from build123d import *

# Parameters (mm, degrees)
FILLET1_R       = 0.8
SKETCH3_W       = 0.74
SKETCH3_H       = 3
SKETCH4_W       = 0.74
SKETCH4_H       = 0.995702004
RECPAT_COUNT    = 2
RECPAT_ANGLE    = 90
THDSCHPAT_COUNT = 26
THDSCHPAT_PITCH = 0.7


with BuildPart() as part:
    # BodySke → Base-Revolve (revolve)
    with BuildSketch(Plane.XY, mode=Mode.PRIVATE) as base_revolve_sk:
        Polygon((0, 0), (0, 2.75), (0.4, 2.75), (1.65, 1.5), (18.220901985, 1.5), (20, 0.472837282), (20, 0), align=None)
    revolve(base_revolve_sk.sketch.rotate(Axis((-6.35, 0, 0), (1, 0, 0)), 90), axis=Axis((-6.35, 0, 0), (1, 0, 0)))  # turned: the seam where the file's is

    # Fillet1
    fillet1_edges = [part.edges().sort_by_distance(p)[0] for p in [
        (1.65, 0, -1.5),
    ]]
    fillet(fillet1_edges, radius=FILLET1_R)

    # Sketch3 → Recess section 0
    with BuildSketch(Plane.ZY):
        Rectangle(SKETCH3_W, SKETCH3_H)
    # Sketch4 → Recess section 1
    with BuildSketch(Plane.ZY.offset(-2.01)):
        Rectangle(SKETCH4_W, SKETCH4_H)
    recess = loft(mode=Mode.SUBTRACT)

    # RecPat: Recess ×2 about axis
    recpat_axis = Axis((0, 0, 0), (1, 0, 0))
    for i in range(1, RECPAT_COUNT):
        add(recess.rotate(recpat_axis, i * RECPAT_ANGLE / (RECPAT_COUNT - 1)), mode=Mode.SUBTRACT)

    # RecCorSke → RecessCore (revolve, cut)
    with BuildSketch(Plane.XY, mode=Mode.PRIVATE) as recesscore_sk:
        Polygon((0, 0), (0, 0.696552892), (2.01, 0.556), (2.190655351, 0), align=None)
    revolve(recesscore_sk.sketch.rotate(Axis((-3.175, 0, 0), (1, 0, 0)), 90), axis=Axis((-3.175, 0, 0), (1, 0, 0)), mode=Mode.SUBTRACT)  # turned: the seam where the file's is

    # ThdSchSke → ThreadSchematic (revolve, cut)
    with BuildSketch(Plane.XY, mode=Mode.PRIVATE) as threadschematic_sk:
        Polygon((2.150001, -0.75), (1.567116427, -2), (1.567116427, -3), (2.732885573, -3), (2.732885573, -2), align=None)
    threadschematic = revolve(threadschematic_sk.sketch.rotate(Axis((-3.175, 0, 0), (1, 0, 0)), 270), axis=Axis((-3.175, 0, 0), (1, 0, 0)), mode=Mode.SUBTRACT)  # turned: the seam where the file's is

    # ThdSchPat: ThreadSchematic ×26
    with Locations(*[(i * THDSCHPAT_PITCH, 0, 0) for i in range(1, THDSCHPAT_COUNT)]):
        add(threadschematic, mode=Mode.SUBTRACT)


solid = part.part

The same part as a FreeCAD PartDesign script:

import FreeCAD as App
import Part
import Sketcher
from FreeCAD import Vector
Q = App.Units.Quantity


def edges_at(feature, points):
    """Names of the edges that pass closest to the given points."""
    edges = feature.Shape.Edges
    near = lambda p: min(range(len(edges)), key=lambda i: edges[i].distToShape(Part.Vertex(*p))[0])
    return sorted({f"Edge{near(p) + 1}" for p in points})

doc = App.newDocument("Part")
body = doc.addObject("PartDesign::Body", "Body")

sketch1 = doc.addObject("Sketcher::SketchObject", "Sketch")
body.addObject(sketch1)
sketch1.AttachmentSupport = (doc.XY_Plane, [""])
sketch1.MapMode = "FlatFace"
sketch1.addGeometry([
    Part.LineSegment(Vector(0, 2.75, 0), Vector(0, 0, 0)),
    Part.LineSegment(Vector(0, 0, 0), Vector(20, 0, 0)),
    Part.LineSegment(Vector(20, 0, 0), Vector(20, 0.472837, 0)),
    Part.LineSegment(Vector(20, 0.472837, 0), Vector(18.220902, 1.5, 0)),
    Part.LineSegment(Vector(18.220902, 1.5, 0), Vector(1.65, 1.5, 0)),
    Part.LineSegment(Vector(1.65, 1.5, 0), Vector(0.4, 2.75, 0)),
    Part.LineSegment(Vector(0.4, 2.75, 0), Vector(0, 2.75, 0)),
], False)
sketch1.addConstraint([
    Sketcher.Constraint("Coincident", 0, 2, 1, 1),
    Sketcher.Constraint("Coincident", 1, 2, 2, 1),
    Sketcher.Constraint("Coincident", 2, 2, 3, 1),
    Sketcher.Constraint("Coincident", 3, 2, 4, 1),
    Sketcher.Constraint("Coincident", 4, 2, 5, 1),
    Sketcher.Constraint("Coincident", 5, 2, 6, 1),
    Sketcher.Constraint("Coincident", 6, 2, 0, 1),
    Sketcher.Constraint("Vertical", 0),
    Sketcher.Constraint("Horizontal", 1),
    Sketcher.Constraint("Vertical", 2),
    Sketcher.Constraint("Horizontal", 4),
    Sketcher.Constraint("Horizontal", 6),
    Sketcher.Constraint("Coincident", 0, 2, -1, 1),
    Sketcher.Constraint("DistanceX", 1, 1, 1, 2, Q("20 mm")),
    Sketcher.Constraint("Angle", 3, Q("150 deg")),
    Sketcher.Constraint("Angle", 5, Q("135 deg")),
    Sketcher.Constraint("DistanceX", 6, 2, 6, 1, Q("0.4 mm")),
    Sketcher.Constraint("DistanceY", 0, 2, 0, 1, Q("2.75 mm")),
    Sketcher.Constraint("DistanceY", -1, 1, 3, 2, Q("1.5 mm")),
    Sketcher.Constraint("DistanceX", 4, 2, 4, 1, Q("16.570902 mm")),
])
revolution = doc.addObject("PartDesign::Revolution", "Revolution")
body.addObject(revolution)
revolution.Profile = sketch1
revolution.ReferenceAxis = (sketch1, ["H_Axis"])
revolution.Angle = 360
doc.recompute()

fillet = doc.addObject("PartDesign::Fillet", "Fillet")
body.addObject(fillet)
fillet.Base = (revolution, edges_at(revolution, [(1.65, 0, -1.5)]))
fillet.Radius = 0.8

sketch2 = doc.addObject("Sketcher::SketchObject", "Sketch001")
body.addObject(sketch2)
sketch2.AttachmentSupport = (doc.YZ_Plane, [""])
sketch2.MapMode = "FlatFace"
sketch2.addGeometry([
    Part.LineSegment(Vector(1.5, -0.37, 0), Vector(-1.5, -0.37, 0)),
    Part.LineSegment(Vector(-1.5, -0.37, 0), Vector(-1.5, 0.37, 0)),
    Part.LineSegment(Vector(-1.5, 0.37, 0), Vector(1.5, 0.37, 0)),
    Part.LineSegment(Vector(1.5, 0.37, 0), Vector(1.5, -0.37, 0)),
], False)
sketch2.addConstraint([
    Sketcher.Constraint("Coincident", 0, 2, 1, 1),
    Sketcher.Constraint("Coincident", 1, 2, 2, 1),
    Sketcher.Constraint("Coincident", 2, 2, 3, 1),
    Sketcher.Constraint("Coincident", 3, 2, 0, 1),
    Sketcher.Constraint("Horizontal", 0),
    Sketcher.Constraint("Vertical", 1),
    Sketcher.Constraint("Horizontal", 2),
    Sketcher.Constraint("Vertical", 3),
    Sketcher.Constraint("Symmetric", 0, 2, 2, 2, -1, 1),
    Sketcher.Constraint("DistanceX", 0, 2, 0, 1, Q("3 mm")),
    Sketcher.Constraint("DistanceY", 1, 1, 1, 2, Q("0.74 mm")),
])

sketch3 = doc.addObject("Sketcher::SketchObject", "Sketch002")
body.addObject(sketch3)
sketch3.AttachmentSupport = (doc.YZ_Plane, [""])
sketch3.MapMode = "FlatFace"
sketch3.AttachmentOffset = App.Placement(Vector(0, 0, 2.01), App.Rotation())
sketch3.addGeometry([
    Part.LineSegment(Vector(0.497851, -0.37, 0), Vector(-0.497851, -0.37, 0)),
    Part.LineSegment(Vector(-0.497851, -0.37, 0), Vector(-0.497851, 0.37, 0)),
    Part.LineSegment(Vector(-0.497851, 0.37, 0), Vector(0.497851, 0.37, 0)),
    Part.LineSegment(Vector(0.497851, 0.37, 0), Vector(0.497851, -0.37, 0)),
], False)
sketch3.addConstraint([
    Sketcher.Constraint("Coincident", 0, 2, 1, 1),
    Sketcher.Constraint("Coincident", 1, 2, 2, 1),
    Sketcher.Constraint("Coincident", 2, 2, 3, 1),
    Sketcher.Constraint("Coincident", 3, 2, 0, 1),
    Sketcher.Constraint("Horizontal", 0),
    Sketcher.Constraint("Vertical", 1),
    Sketcher.Constraint("Horizontal", 2),
    Sketcher.Constraint("Vertical", 3),
    Sketcher.Constraint("Symmetric", 0, 2, 2, 2, -1, 1),
    Sketcher.Constraint("DistanceY", 1, 1, 1, 2, Q("0.74 mm")),
    Sketcher.Constraint("DistanceX", 0, 2, 0, 1, Q("0.995702 mm")),
])

subtractiveloft = doc.addObject("PartDesign::SubtractiveLoft", "SubtractiveLoft")
body.addObject(subtractiveloft)
subtractiveloft.Profile = sketch2
subtractiveloft.Sections = [sketch3]
doc.recompute()

polarpattern = doc.addObject("PartDesign::PolarPattern", "PolarPattern")
body.addObject(polarpattern)
polarpattern.Originals = [subtractiveloft]
polarpattern.Axis = (doc.X_Axis, [""])
polarpattern.Angle = 90
polarpattern.Occurrences = 2
body.Tip = polarpattern

sketch4 = doc.addObject("Sketcher::SketchObject", "Sketch003")
body.addObject(sketch4)
sketch4.AttachmentSupport = (doc.XY_Plane, [""])
sketch4.MapMode = "FlatFace"
sketch4.addGeometry([
    Part.LineSegment(Vector(0, 0.696553, 0), Vector(0, 0, 0)),
    Part.LineSegment(Vector(0, 0, 0), Vector(2.190655, 0, 0)),
    Part.LineSegment(Vector(2.190655, 0, 0), Vector(2.01, 0.556, 0)),
    Part.LineSegment(Vector(2.01, 0.556, 0), Vector(0, 0.696553, 0)),
], False)
sketch4.addConstraint([
    Sketcher.Constraint("Coincident", 0, 2, 1, 1),
    Sketcher.Constraint("Coincident", 1, 2, 2, 1),
    Sketcher.Constraint("Coincident", 2, 2, 3, 1),
    Sketcher.Constraint("Coincident", 3, 2, 0, 1),
    Sketcher.Constraint("Vertical", 0),
    Sketcher.Constraint("Horizontal", 1),
    Sketcher.Constraint("Coincident", 0, 2, -1, 1),
    Sketcher.Constraint("Angle", 2, Q("108 deg")),
    Sketcher.Constraint("Angle", 3, Q("176 deg")),
    Sketcher.Constraint("DistanceX", -1, 1, 2, 2, Q("2.01 mm")),
    Sketcher.Constraint("DistanceY", -1, 1, 2, 2, Q("0.556 mm")),
])
groove = doc.addObject("PartDesign::Groove", "Groove")
body.addObject(groove)
groove.Profile = sketch4
groove.ReferenceAxis = (sketch4, ["H_Axis"])
groove.Angle = 360

sketch5 = doc.addObject("Sketcher::SketchObject", "Sketch004")
body.addObject(sketch5)
sketch5.AttachmentSupport = (doc.XY_Plane, [""])
sketch5.MapMode = "FlatFace"
sketch5.addGeometry([
    Part.LineSegment(Vector(2.150001, -0.75, 0), Vector(1.567116, -2, 0)),
    Part.LineSegment(Vector(1.567116, -2, 0), Vector(1.567116, -3, 0)),
    Part.LineSegment(Vector(1.567116, -3, 0), Vector(2.732886, -3, 0)),
    Part.LineSegment(Vector(2.732886, -3, 0), Vector(2.732886, -2, 0)),
    Part.LineSegment(Vector(2.732886, -2, 0), Vector(2.150001, -0.75, 0)),
], False)
sketch5.addConstraint([
    Sketcher.Constraint("Coincident", 0, 2, 1, 1),
    Sketcher.Constraint("Coincident", 1, 2, 2, 1),
    Sketcher.Constraint("Coincident", 2, 2, 3, 1),
    Sketcher.Constraint("Coincident", 3, 2, 4, 1),
    Sketcher.Constraint("Coincident", 4, 2, 0, 1),
    Sketcher.Constraint("Vertical", 1),
    Sketcher.Constraint("Horizontal", 2),
    Sketcher.Constraint("Vertical", 3),
    Sketcher.Constraint("Horizontal", 0, 2, 3, 2),
    Sketcher.Constraint("Equal", 0, 4),
    Sketcher.Constraint("DistanceY", 1, 2, 1, 1, Q("1 mm")),
    Sketcher.Constraint("Angle", 0, Q("-115 deg")),
    Sketcher.Constraint("DistanceY", 0, 2, -1, 1, Q("2 mm")),
    Sketcher.Constraint("DistanceX", -1, 1, 4, 2, Q("2.150001 mm")),
    Sketcher.Constraint("DistanceY", 4, 2, -1, 1, Q("0.75 mm")),
])
groove2 = doc.addObject("PartDesign::Groove", "Groove001")
body.addObject(groove2)
groove2.Profile = sketch5
groove2.ReferenceAxis = (sketch5, ["H_Axis"])
groove2.Angle = 360
doc.recompute()

linearpattern = doc.addObject("PartDesign::LinearPattern", "LinearPattern")
body.addObject(linearpattern)
linearpattern.Originals = [groove2]
linearpattern.Direction = (doc.X_Axis, [""])
linearpattern.Mode = "offset"
linearpattern.Offset = 0.7
linearpattern.Occurrences = 26
body.Tip = linearpattern

doc.recompute()
